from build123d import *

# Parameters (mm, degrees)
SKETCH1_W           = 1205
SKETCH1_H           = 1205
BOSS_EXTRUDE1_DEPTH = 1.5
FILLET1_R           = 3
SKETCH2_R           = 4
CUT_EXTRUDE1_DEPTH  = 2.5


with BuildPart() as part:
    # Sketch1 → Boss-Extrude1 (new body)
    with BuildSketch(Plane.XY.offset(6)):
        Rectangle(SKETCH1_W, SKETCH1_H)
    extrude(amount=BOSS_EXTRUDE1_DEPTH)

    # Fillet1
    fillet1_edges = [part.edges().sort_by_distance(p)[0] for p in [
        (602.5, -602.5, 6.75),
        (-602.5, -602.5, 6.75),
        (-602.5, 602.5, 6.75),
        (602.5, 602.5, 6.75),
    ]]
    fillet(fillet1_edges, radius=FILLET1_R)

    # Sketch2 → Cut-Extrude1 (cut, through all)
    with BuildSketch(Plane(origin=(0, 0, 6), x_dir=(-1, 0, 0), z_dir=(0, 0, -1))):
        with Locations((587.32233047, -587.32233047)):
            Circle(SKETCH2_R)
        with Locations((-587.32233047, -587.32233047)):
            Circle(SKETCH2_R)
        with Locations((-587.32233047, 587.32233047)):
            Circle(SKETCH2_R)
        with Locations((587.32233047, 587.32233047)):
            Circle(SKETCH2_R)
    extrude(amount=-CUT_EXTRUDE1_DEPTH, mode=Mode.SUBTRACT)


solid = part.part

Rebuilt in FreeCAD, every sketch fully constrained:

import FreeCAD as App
import Part
import Sketcher

V = App.Vector
Q = App.Units.Quantity


def edges_at(feature, points):
    """Names of the edges that pass closest to the given points."""
    edges = feature.Shape.Edges
    near = lambda p: min(range(len(edges)), key=lambda i: edges[i].distToShape(Part.Vertex(*p))[0])
    return sorted({f"Edge{near(p) + 1}" for p in points})

doc = App.newDocument("Part")
body = doc.addObject("PartDesign::Body", "Body")

# Sketch on XY plane
sketch1 = doc.addObject("Sketcher::SketchObject", "Sketch")
body.addObject(sketch1)
sketch1.AttachmentSupport = (doc.XY_Plane, [""])
sketch1.MapMode = "FlatFace"
sketch1.AttachmentOffset = App.Placement(V(0, 0, 6), App.Rotation())
sketch1.addGeometry(Part.LineSegment(V(-602, 602, 0), V(-602, -602, 0)), False)
sketch1.addGeometry(Part.LineSegment(V(-602, -602, 0), V(602, -602, 0)), False)
sketch1.addGeometry(Part.LineSegment(V(602, -602, 0), V(602, 602, 0)), False)
sketch1.addGeometry(Part.LineSegment(V(602, 602, 0), V(-602, 602, 0)), False)
sketch1.addConstraint(Sketcher.Constraint("Coincident", 0, 2, 1, 1))
sketch1.addConstraint(Sketcher.Constraint("Coincident", 1, 2, 2, 1))
sketch1.addConstraint(Sketcher.Constraint("Coincident", 2, 2, 3, 1))
sketch1.addConstraint(Sketcher.Constraint("Coincident", 3, 2, 0, 1))
sketch1.addConstraint(Sketcher.Constraint("Vertical", 0))
sketch1.addConstraint(Sketcher.Constraint("Horizontal", 1))
sketch1.addConstraint(Sketcher.Constraint("Vertical", 2))
sketch1.addConstraint(Sketcher.Constraint("Horizontal", 3))
sketch1.addConstraint(Sketcher.Constraint("Symmetric", 0, 2, 2, 2, -1, 1))
sketch1.addConstraint(Sketcher.Constraint("Equal", 3, 0))
sketch1.addConstraint(Sketcher.Constraint("DistanceX", 1, 1, 1, 2, Q("1205 mm")))
pad1 = doc.addObject("PartDesign::Pad", "Pad")
body.addObject(pad1)
pad1.Profile = sketch1
pad1.Length = 1.5
doc.recompute()

fillet = doc.addObject("PartDesign::Fillet", "Fillet")
body.addObject(fillet)
fillet.Base = (pad1, edges_at(pad1, [
    (602.5, -602.5, 6.75),
    (-602.5, -602.5, 6.75),
    (-602.5, 602.5, 6.75),
    (602.5, 602.5, 6.75),
]))
fillet.Radius = 3

# Sketch on XY plane
sketch2 = doc.addObject("Sketcher::SketchObject", "Sketch001")
body.addObject(sketch2)
sketch2.AttachmentSupport = (doc.XY_Plane, [""])
sketch2.MapMode = "FlatFace"
sketch2.AttachmentOffset = App.Placement(V(0, 0, 6), App.Rotation())
sketch2.addGeometry(Part.Circle(V(-587.3, -587.3, 0), V(0, 0, 1), 4), False)
sketch2.addGeometry(Part.Circle(V(587.3, -587.3, 0), V(0, 0, 1), 4), False)
sketch2.addGeometry(Part.Circle(V(587.3, 587.3, 0), V(0, 0, 1), 4), False)
sketch2.addGeometry(Part.Circle(V(-587.3, 587.3, 0), V(0, 0, 1), 4), False)
sketch2.addConstraint(Sketcher.Constraint("Equal", 0, 1))
sketch2.addConstraint(Sketcher.Constraint("Equal", 1, 2))
sketch2.addConstraint(Sketcher.Constraint("Equal", 2, 3))
sketch2.addConstraint(Sketcher.Constraint("Symmetric", 0, 3, 2, 3, -1, 1))
sketch2.addConstraint(Sketcher.Constraint("Symmetric", 1, 3, 3, 3, -1, 1))
sketch2.addConstraint(Sketcher.Constraint("Symmetric", 0, 3, 1, 3, -2))
sketch2.addConstraint(Sketcher.Constraint("Diameter", 0, Q("8 mm")))
sketch2.addConstraint(Sketcher.Constraint("DistanceX", 0, 3, -1, 1, Q("587.32233 mm")))
sketch2.addConstraint(Sketcher.Constraint("DistanceY", 0, 3, -1, 1, Q("587.32233 mm")))
pocket1 = doc.addObject("PartDesign::Pocket", "Pocket")
body.addObject(pocket1)
pocket1.Profile = sketch2
pocket1.Type = "ThroughAll"
pocket1.Reversed = True

doc.recompute()
